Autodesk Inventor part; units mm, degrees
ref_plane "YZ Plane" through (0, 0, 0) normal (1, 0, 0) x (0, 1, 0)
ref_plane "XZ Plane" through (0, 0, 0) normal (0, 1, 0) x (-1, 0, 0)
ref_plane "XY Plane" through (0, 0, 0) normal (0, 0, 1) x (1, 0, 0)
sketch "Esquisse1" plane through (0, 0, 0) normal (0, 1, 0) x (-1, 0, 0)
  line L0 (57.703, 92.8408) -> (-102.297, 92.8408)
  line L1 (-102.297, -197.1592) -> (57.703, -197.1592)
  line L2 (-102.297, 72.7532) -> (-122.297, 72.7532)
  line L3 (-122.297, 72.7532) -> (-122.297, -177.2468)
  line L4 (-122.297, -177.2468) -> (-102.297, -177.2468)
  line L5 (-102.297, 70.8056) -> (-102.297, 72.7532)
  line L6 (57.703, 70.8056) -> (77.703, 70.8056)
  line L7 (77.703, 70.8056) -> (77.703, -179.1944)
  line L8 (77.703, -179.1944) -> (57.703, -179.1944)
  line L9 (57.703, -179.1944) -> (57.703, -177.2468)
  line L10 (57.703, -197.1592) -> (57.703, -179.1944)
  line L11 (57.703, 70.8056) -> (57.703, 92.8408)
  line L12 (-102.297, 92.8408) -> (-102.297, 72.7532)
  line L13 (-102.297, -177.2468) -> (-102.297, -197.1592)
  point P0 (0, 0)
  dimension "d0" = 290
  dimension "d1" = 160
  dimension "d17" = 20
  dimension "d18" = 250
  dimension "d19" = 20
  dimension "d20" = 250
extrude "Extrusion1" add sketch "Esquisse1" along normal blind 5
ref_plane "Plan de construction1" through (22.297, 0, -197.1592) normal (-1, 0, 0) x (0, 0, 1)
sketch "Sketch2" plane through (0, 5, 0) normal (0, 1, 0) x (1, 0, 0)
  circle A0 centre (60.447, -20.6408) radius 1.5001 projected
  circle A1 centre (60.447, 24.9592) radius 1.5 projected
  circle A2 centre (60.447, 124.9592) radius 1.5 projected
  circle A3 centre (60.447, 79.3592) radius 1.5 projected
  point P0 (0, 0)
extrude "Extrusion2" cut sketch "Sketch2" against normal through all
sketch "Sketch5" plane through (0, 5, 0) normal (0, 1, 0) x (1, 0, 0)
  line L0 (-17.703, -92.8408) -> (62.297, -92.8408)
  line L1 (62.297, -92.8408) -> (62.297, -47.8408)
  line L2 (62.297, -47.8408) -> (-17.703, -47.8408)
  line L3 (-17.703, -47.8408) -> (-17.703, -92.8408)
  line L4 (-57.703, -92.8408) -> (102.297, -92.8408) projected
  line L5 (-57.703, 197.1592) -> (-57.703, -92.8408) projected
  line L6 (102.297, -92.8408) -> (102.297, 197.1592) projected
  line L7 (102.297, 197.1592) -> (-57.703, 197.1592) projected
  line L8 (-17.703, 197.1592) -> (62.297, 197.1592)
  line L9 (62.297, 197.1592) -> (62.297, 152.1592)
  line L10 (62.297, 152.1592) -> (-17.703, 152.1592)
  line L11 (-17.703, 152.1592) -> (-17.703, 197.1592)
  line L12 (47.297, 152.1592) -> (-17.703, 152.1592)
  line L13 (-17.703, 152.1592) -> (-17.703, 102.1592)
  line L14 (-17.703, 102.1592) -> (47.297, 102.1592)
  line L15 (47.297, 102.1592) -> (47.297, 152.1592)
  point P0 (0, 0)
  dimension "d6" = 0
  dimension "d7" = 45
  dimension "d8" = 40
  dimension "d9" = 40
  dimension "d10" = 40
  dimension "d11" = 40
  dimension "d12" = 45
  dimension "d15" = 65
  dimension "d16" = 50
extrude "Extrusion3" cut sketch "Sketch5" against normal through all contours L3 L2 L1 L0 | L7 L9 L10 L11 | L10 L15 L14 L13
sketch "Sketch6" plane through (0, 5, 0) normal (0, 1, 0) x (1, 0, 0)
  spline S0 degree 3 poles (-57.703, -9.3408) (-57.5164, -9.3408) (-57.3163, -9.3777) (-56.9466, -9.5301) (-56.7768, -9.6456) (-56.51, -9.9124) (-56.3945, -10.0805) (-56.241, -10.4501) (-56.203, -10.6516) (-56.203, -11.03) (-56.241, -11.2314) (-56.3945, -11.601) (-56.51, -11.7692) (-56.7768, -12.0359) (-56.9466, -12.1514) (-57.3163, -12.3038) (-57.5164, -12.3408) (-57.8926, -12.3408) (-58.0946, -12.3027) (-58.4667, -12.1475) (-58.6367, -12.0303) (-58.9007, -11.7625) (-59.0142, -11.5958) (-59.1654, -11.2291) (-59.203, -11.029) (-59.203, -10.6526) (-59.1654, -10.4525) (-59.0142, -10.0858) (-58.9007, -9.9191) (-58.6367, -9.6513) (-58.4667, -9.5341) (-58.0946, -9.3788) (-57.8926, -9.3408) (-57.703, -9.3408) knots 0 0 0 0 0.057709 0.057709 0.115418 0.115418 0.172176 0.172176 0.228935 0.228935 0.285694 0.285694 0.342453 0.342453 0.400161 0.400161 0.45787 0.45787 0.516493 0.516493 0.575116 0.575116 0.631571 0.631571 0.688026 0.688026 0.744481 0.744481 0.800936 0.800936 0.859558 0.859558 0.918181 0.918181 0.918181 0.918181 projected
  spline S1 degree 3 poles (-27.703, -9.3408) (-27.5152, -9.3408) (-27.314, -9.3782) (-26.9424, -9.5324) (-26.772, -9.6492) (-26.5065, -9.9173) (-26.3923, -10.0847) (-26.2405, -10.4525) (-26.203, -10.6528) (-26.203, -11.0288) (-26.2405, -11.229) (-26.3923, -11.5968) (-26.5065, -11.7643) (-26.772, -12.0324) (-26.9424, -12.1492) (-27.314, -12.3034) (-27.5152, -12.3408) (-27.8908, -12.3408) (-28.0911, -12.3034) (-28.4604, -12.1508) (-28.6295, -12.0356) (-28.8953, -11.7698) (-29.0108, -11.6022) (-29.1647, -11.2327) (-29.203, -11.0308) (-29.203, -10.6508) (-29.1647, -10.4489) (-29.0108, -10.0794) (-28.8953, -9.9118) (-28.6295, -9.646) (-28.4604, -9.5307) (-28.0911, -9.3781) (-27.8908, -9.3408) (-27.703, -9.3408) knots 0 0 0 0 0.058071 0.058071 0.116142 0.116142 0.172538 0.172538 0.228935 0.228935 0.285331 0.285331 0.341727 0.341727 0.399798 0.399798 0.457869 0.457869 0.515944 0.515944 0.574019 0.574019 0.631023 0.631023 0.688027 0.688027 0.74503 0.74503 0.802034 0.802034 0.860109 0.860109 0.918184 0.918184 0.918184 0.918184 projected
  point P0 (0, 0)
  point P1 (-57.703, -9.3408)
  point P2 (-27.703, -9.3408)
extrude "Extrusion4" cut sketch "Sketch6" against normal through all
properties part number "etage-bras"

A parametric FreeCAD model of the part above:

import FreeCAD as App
import Part
import Sketcher
from FreeCAD import Vector
Q = App.Units.Quantity

doc = App.newDocument("Part")
body = doc.addObject("PartDesign::Body", "Body")

# Sketch on XZ plane
sketch1 = body.newObject("Sketcher::SketchObject", "Sketch")
sketch1.AttachmentSupport = (doc.getObject("XZ_Plane"), [""])
sketch1.MapMode = "FlatFace"
sketch1.addGeometry([
    Part.LineSegment(Vector(-58, 71, 0), Vector(-58, 93, 0)),  # 0
    Part.LineSegment(Vector(-58, 93, 0), Vector(102, 93, 0)),  # 1
    Part.LineSegment(Vector(102, 93, 0), Vector(102, 73, 0)),  # 2
    Part.LineSegment(Vector(102, 73, 0), Vector(122, 73, 0)),  # 3
    Part.LineSegment(Vector(122, 73, 0), Vector(122, -177, 0)),  # 4
    Part.LineSegment(Vector(122, -177, 0), Vector(102, -177, 0)),  # 5
    Part.LineSegment(Vector(102, -177, 0), Vector(102, -197, 0)),  # 6
    Part.LineSegment(Vector(102, -197, 0), Vector(-58, -197, 0)),  # 7
    Part.LineSegment(Vector(-58, -197, 0), Vector(-58, -179, 0)),  # 8
    Part.LineSegment(Vector(-58, -179, 0), Vector(-78, -179, 0)),  # 9
    Part.LineSegment(Vector(-78, -179, 0), Vector(-78, 71, 0)),  # 10
    Part.LineSegment(Vector(-78, 71, 0), Vector(-58, 71, 0)),  # 11
], False)
sketch1.addConstraint([
    Sketcher.Constraint("Coincident", 0, 2, 1, 1),
    Sketcher.Constraint("Coincident", 1, 2, 2, 1),
    Sketcher.Constraint("Coincident", 2, 2, 3, 1),
    Sketcher.Constraint("Coincident", 3, 2, 4, 1),
    Sketcher.Constraint("Coincident", 4, 2, 5, 1),
    Sketcher.Constraint("Coincident", 5, 2, 6, 1),
    Sketcher.Constraint("Coincident", 6, 2, 7, 1),
    Sketcher.Constraint("Coincident", 7, 2, 8, 1),
    Sketcher.Constraint("Coincident", 8, 2, 9, 1),
    Sketcher.Constraint("Coincident", 9, 2, 10, 1),
    Sketcher.Constraint("Coincident", 10, 2, 11, 1),
    Sketcher.Constraint("Coincident", 11, 2, 0, 1),
    Sketcher.Constraint("Vertical", 0),
    Sketcher.Constraint("Horizontal", 1),
    Sketcher.Constraint("Vertical", 2),
    Sketcher.Constraint("Horizontal", 3),
    Sketcher.Constraint("Vertical", 4),
    Sketcher.Constraint("Horizontal", 5),
    Sketcher.Constraint("Vertical", 6),
    Sketcher.Constraint("Horizontal", 7),
    Sketcher.Constraint("Vertical", 8),
    Sketcher.Constraint("Horizontal", 9),
    Sketcher.Constraint("Vertical", 10),
    Sketcher.Constraint("Horizontal", 11),
    Sketcher.Constraint("Vertical", 2, 2, 5, 2),
    Sketcher.Constraint("Vertical", 0, 2, 7, 2),
    Sketcher.Constraint("Equal", 5, 9),
    Sketcher.Constraint("Equal", 4, 10),
    Sketcher.Constraint("DistanceX", 1, 1, 1, 2, Q("160 mm")),
    Sketcher.Constraint("DistanceX", 3, 1, 3, 2, Q("20 mm")),
    Sketcher.Constraint("DistanceY", 4, 2, 4, 1, Q("250 mm")),
    Sketcher.Constraint("DistanceY", 6, 2, 1, 2, Q("290 mm")),
    Sketcher.Constraint("DistanceY", 0, 1, 0, 2, Q("22.0352 mm")),
    Sketcher.Constraint("DistanceY", 2, 2, 2, 1, Q("20.0876 mm")),
    Sketcher.Constraint("DistanceX", 0, 2, -1, 1, Q("57.703 mm")),
    Sketcher.Constraint("DistanceY", -1, 1, 0, 2, Q("92.8408 mm")),
])
pad1 = body.newObject("PartDesign::Pad", "Pad")
pad1.Profile = sketch1
pad1.Length = 5
pad1.Reversed = True

# Sketch on XZ plane
sketch2 = body.newObject("Sketcher::SketchObject", "Sketch001")
sketch2.AttachmentSupport = (doc.getObject("XZ_Plane"), [""])
sketch2.MapMode = "FlatFace"
sketch2.AttachmentOffset = App.Placement(Vector(0, 0, -5), App.Rotation())
sketch2.addGeometry([
    Part.Circle(Vector(60.4, 20.6, 0), Vector(0, 0, 1), 1.5),
    Part.Circle(Vector(60.4, -25, 0), Vector(0, 0, 1), 1.5),
    Part.Circle(Vector(60.4, -125, 0), Vector(0, 0, 1), 1.5),
    Part.Circle(Vector(60.4, -79.4, 0), Vector(0, 0, 1), 1.5),
], False)
sketch2.addConstraint([
    Sketcher.Constraint("Equal", 0, 1),
    Sketcher.Constraint("Equal", 1, 2),
    Sketcher.Constraint("Equal", 2, 3),
    Sketcher.Constraint("Vertical", 0, 3, 1, 3),
    Sketcher.Constraint("Vertical", 1, 3, 2, 3),
    Sketcher.Constraint("Vertical", 2, 3, 3, 3),
    Sketcher.Constraint("Diameter", 1, Q("3 mm")),
    Sketcher.Constraint("DistanceY", 2, 3, 1, 3, Q("100 mm")),
    Sketcher.Constraint("DistanceY", 3, 3, 0, 3, Q("100 mm")),
    Sketcher.Constraint("DistanceY", 1, 3, 0, 3, Q("45.6 mm")),
    Sketcher.Constraint("DistanceX", -1, 1, 0, 3, Q("60.447 mm")),
    Sketcher.Constraint("DistanceY", -1, 1, 0, 3, Q("20.6408 mm")),
])
pocket1 = body.newObject("PartDesign::Pocket", "Pocket")
pocket1.Profile = sketch2
pocket1.Type = "ThroughAll"
pocket1.Reversed = True

# Sketch on XZ plane
sketch3 = body.newObject("Sketcher::SketchObject", "Sketch002")
sketch3.AttachmentSupport = (doc.getObject("XZ_Plane"), [""])
sketch3.MapMode = "FlatFace"
sketch3.AttachmentOffset = App.Placement(Vector(0, 0, -5), App.Rotation())
sketch3.addGeometry([
    Part.LineSegment(Vector(-18, 48, 0), Vector(-18, 93, 0)),  # 0
    Part.LineSegment(Vector(-18, 93, 0), Vector(62, 93, 0)),  # 1
    Part.LineSegment(Vector(62, 93, 0), Vector(62, 48, 0)),  # 2
    Part.LineSegment(Vector(62, 48, 0), Vector(-18, 48, 0)),  # 3
    Part.LineSegment(Vector(62, -197, 0), Vector(-18, -197, 0)),  # 4
    Part.LineSegment(Vector(-18, -197, 0), Vector(-18, -102, 0)),  # 5
    Part.LineSegment(Vector(-18, -102, 0), Vector(47, -102, 0)),  # 6
    Part.LineSegment(Vector(47, -102, 0), Vector(47, -152, 0)),  # 7
    Part.LineSegment(Vector(47, -152, 0), Vector(62, -152, 0)),  # 8
    Part.LineSegment(Vector(62, -152, 0), Vector(62, -197, 0)),  # 9
], False)
sketch3.addConstraint([
    Sketcher.Constraint("Coincident", 0, 2, 1, 1),
    Sketcher.Constraint("Coincident", 1, 2, 2, 1),
    Sketcher.Constraint("Coincident", 2, 2, 3, 1),
    Sketcher.Constraint("Coincident", 3, 2, 0, 1),
    Sketcher.Constraint("Coincident", 4, 2, 5, 1),
    Sketcher.Constraint("Coincident", 5, 2, 6, 1),
    Sketcher.Constraint("Coincident", 6, 2, 7, 1),
    Sketcher.Constraint("Coincident", 7, 2, 8, 1),
    Sketcher.Constraint("Coincident", 8, 2, 9, 1),
    Sketcher.Constraint("Coincident", 9, 2, 4, 1),
    Sketcher.Constraint("Vertical", 0),
    Sketcher.Constraint("Horizontal", 1),
    Sketcher.Constraint("Vertical", 2),
    Sketcher.Constraint("Horizontal", 3),
    Sketcher.Constraint("Horizontal", 4),
    Sketcher.Constraint("Vertical", 5),
    Sketcher.Constraint("Horizontal", 6),
    Sketcher.Constraint("Vertical", 7),
    Sketcher.Constraint("Horizontal", 8),
    Sketcher.Constraint("Vertical", 9),
    Sketcher.Constraint("Vertical", 3, 2, 4, 2),
    Sketcher.Constraint("Vertical", 2, 2, 8, 2),
    Sketcher.Constraint("Equal", 2, 9),
    Sketcher.Constraint("DistanceX", 6, 1, 6, 2, Q("65 mm")),
    Sketcher.Constraint("DistanceY", 0, 1, 0, 2, Q("45 mm")),
    Sketcher.Constraint("DistanceY", 7, 2, 7, 1, Q("50 mm")),
    Sketcher.Constraint("DistanceX", 1, 1, 1, 2, Q("80 mm")),
    Sketcher.Constraint("DistanceY", 4, 2, 3, 2, Q("245 mm")),
    Sketcher.Constraint("DistanceX", 0, 2, -1, 1, Q("17.703 mm")),
    Sketcher.Constraint("DistanceY", -1, 1, 0, 2, Q("92.8408 mm")),
])
pocket2 = body.newObject("PartDesign::Pocket", "Pocket001")
pocket2.Profile = sketch3
pocket2.Type = "ThroughAll"
pocket2.Reversed = True

# Sketch on XZ plane
sketch4 = body.newObject("Sketcher::SketchObject", "Sketch003")
sketch4.AttachmentSupport = (doc.getObject("XZ_Plane"), [""])
sketch4.MapMode = "FlatFace"
sketch4.AttachmentOffset = App.Placement(Vector(0, 0, -5), App.Rotation())
sketch4.addGeometry([
    Part.BSplineCurve([Vector(-57.703, 9.3408, 0), Vector(-57.5164, 9.3408, 0), Vector(-57.3163, 9.3777, 0), Vector(-56.9466, 9.5301, 0), Vector(-56.7768, 9.6456, 0), Vector(-56.51, 9.9124, 0), Vector(-56.3945, 10.0805, 0), Vector(-56.241, 10.4501, 0), Vector(-56.203, 10.6516, 0), Vector(-56.203, 11.03, 0), Vector(-56.241, 11.2314, 0), Vector(-56.3945, 11.601, 0), Vector(-56.51, 11.7692, 0), Vector(-56.7768, 12.0359, 0), Vector(-56.9466, 12.1514, 0), Vector(-57.3163, 12.3038, 0), Vector(-57.5164, 12.3408, 0), Vector(-57.8926, 12.3408, 0), Vector(-58.0946, 12.3027, 0), Vector(-58.4667, 12.1475, 0), Vector(-58.6367, 12.0303, 0), Vector(-58.9007, 11.7625, 0), Vector(-59.0142, 11.5958, 0), Vector(-59.1654, 11.2291, 0), Vector(-59.203, 11.029, 0), Vector(-59.203, 10.6526, 0), Vector(-59.1654, 10.4525, 0), Vector(-59.0142, 10.0858, 0), Vector(-58.9007, 9.9191, 0), Vector(-58.6367, 9.6513, 0), Vector(-58.4667, 9.5341, 0), Vector(-58.0946, 9.3788, 0), Vector(-57.8926, 9.3408, 0), Vector(-57.703, 9.3408, 0)], [4, 2, 2, 2, 2, 2, 2, 2, 2, 2, 2, 2, 2, 2, 2, 2, 4], [0, 0.057709, 0.115418, 0.172176, 0.228935, 0.285694, 0.342453, 0.400161, 0.45787, 0.516493, 0.575116, 0.631571, 0.688026, 0.744481, 0.800936, 0.859558, 0.918181], False, 3, [1, 1, 1, 1, 1, 1, 1, 1, 1, 1, 1, 1, 1, 1, 1, 1, 1, 1, 1, 1, 1, 1, 1, 1, 1, 1, 1, 1, 1, 1, 1, 1, 1, 1], False),
    Part.BSplineCurve([Vector(-27.703, 9.3408, 0), Vector(-27.5152, 9.3408, 0), Vector(-27.314, 9.3782, 0), Vector(-26.9424, 9.5324, 0), Vector(-26.772, 9.6492, 0), Vector(-26.5065, 9.9173, 0), Vector(-26.3923, 10.0847, 0), Vector(-26.2405, 10.4525, 0), Vector(-26.203, 10.6528, 0), Vector(-26.203, 11.0288, 0), Vector(-26.2405, 11.229, 0), Vector(-26.3923, 11.5968, 0), Vector(-26.5065, 11.7643, 0), Vector(-26.772, 12.0324, 0), Vector(-26.9424, 12.1492, 0), Vector(-27.314, 12.3034, 0), Vector(-27.5152, 12.3408, 0), Vector(-27.8908, 12.3408, 0), Vector(-28.0911, 12.3034, 0), Vector(-28.4604, 12.1508, 0), Vector(-28.6295, 12.0356, 0), Vector(-28.8953, 11.7698, 0), Vector(-29.0108, 11.6022, 0), Vector(-29.1647, 11.2327, 0), Vector(-29.203, 11.0308, 0), Vector(-29.203, 10.6508, 0), Vector(-29.1647, 10.4489, 0), Vector(-29.0108, 10.0794, 0), Vector(-28.8953, 9.9118, 0), Vector(-28.6295, 9.646, 0), Vector(-28.4604, 9.5307, 0), Vector(-28.0911, 9.3781, 0), Vector(-27.8908, 9.3408, 0), Vector(-27.703, 9.3408, 0)], [4, 2, 2, 2, 2, 2, 2, 2, 2, 2, 2, 2, 2, 2, 2, 2, 4], [0, 0.058071, 0.116142, 0.172538, 0.228935, 0.285331, 0.341727, 0.399798, 0.457869, 0.515944, 0.574019, 0.631023, 0.688027, 0.74503, 0.802034, 0.860109, 0.918184], False, 3, [1, 1, 1, 1, 1, 1, 1, 1, 1, 1, 1, 1, 1, 1, 1, 1, 1, 1, 1, 1, 1, 1, 1, 1, 1, 1, 1, 1, 1, 1, 1, 1, 1, 1], False),
], False)
sketch4.addConstraint([
    Sketcher.Constraint("Block", 0),
    Sketcher.Constraint("Block", 1),
])
pocket3 = body.newObject("PartDesign::Pocket", "Pocket002")
pocket3.Profile = sketch4
pocket3.Type = "ThroughAll"
pocket3.Reversed = True

doc.recompute()
